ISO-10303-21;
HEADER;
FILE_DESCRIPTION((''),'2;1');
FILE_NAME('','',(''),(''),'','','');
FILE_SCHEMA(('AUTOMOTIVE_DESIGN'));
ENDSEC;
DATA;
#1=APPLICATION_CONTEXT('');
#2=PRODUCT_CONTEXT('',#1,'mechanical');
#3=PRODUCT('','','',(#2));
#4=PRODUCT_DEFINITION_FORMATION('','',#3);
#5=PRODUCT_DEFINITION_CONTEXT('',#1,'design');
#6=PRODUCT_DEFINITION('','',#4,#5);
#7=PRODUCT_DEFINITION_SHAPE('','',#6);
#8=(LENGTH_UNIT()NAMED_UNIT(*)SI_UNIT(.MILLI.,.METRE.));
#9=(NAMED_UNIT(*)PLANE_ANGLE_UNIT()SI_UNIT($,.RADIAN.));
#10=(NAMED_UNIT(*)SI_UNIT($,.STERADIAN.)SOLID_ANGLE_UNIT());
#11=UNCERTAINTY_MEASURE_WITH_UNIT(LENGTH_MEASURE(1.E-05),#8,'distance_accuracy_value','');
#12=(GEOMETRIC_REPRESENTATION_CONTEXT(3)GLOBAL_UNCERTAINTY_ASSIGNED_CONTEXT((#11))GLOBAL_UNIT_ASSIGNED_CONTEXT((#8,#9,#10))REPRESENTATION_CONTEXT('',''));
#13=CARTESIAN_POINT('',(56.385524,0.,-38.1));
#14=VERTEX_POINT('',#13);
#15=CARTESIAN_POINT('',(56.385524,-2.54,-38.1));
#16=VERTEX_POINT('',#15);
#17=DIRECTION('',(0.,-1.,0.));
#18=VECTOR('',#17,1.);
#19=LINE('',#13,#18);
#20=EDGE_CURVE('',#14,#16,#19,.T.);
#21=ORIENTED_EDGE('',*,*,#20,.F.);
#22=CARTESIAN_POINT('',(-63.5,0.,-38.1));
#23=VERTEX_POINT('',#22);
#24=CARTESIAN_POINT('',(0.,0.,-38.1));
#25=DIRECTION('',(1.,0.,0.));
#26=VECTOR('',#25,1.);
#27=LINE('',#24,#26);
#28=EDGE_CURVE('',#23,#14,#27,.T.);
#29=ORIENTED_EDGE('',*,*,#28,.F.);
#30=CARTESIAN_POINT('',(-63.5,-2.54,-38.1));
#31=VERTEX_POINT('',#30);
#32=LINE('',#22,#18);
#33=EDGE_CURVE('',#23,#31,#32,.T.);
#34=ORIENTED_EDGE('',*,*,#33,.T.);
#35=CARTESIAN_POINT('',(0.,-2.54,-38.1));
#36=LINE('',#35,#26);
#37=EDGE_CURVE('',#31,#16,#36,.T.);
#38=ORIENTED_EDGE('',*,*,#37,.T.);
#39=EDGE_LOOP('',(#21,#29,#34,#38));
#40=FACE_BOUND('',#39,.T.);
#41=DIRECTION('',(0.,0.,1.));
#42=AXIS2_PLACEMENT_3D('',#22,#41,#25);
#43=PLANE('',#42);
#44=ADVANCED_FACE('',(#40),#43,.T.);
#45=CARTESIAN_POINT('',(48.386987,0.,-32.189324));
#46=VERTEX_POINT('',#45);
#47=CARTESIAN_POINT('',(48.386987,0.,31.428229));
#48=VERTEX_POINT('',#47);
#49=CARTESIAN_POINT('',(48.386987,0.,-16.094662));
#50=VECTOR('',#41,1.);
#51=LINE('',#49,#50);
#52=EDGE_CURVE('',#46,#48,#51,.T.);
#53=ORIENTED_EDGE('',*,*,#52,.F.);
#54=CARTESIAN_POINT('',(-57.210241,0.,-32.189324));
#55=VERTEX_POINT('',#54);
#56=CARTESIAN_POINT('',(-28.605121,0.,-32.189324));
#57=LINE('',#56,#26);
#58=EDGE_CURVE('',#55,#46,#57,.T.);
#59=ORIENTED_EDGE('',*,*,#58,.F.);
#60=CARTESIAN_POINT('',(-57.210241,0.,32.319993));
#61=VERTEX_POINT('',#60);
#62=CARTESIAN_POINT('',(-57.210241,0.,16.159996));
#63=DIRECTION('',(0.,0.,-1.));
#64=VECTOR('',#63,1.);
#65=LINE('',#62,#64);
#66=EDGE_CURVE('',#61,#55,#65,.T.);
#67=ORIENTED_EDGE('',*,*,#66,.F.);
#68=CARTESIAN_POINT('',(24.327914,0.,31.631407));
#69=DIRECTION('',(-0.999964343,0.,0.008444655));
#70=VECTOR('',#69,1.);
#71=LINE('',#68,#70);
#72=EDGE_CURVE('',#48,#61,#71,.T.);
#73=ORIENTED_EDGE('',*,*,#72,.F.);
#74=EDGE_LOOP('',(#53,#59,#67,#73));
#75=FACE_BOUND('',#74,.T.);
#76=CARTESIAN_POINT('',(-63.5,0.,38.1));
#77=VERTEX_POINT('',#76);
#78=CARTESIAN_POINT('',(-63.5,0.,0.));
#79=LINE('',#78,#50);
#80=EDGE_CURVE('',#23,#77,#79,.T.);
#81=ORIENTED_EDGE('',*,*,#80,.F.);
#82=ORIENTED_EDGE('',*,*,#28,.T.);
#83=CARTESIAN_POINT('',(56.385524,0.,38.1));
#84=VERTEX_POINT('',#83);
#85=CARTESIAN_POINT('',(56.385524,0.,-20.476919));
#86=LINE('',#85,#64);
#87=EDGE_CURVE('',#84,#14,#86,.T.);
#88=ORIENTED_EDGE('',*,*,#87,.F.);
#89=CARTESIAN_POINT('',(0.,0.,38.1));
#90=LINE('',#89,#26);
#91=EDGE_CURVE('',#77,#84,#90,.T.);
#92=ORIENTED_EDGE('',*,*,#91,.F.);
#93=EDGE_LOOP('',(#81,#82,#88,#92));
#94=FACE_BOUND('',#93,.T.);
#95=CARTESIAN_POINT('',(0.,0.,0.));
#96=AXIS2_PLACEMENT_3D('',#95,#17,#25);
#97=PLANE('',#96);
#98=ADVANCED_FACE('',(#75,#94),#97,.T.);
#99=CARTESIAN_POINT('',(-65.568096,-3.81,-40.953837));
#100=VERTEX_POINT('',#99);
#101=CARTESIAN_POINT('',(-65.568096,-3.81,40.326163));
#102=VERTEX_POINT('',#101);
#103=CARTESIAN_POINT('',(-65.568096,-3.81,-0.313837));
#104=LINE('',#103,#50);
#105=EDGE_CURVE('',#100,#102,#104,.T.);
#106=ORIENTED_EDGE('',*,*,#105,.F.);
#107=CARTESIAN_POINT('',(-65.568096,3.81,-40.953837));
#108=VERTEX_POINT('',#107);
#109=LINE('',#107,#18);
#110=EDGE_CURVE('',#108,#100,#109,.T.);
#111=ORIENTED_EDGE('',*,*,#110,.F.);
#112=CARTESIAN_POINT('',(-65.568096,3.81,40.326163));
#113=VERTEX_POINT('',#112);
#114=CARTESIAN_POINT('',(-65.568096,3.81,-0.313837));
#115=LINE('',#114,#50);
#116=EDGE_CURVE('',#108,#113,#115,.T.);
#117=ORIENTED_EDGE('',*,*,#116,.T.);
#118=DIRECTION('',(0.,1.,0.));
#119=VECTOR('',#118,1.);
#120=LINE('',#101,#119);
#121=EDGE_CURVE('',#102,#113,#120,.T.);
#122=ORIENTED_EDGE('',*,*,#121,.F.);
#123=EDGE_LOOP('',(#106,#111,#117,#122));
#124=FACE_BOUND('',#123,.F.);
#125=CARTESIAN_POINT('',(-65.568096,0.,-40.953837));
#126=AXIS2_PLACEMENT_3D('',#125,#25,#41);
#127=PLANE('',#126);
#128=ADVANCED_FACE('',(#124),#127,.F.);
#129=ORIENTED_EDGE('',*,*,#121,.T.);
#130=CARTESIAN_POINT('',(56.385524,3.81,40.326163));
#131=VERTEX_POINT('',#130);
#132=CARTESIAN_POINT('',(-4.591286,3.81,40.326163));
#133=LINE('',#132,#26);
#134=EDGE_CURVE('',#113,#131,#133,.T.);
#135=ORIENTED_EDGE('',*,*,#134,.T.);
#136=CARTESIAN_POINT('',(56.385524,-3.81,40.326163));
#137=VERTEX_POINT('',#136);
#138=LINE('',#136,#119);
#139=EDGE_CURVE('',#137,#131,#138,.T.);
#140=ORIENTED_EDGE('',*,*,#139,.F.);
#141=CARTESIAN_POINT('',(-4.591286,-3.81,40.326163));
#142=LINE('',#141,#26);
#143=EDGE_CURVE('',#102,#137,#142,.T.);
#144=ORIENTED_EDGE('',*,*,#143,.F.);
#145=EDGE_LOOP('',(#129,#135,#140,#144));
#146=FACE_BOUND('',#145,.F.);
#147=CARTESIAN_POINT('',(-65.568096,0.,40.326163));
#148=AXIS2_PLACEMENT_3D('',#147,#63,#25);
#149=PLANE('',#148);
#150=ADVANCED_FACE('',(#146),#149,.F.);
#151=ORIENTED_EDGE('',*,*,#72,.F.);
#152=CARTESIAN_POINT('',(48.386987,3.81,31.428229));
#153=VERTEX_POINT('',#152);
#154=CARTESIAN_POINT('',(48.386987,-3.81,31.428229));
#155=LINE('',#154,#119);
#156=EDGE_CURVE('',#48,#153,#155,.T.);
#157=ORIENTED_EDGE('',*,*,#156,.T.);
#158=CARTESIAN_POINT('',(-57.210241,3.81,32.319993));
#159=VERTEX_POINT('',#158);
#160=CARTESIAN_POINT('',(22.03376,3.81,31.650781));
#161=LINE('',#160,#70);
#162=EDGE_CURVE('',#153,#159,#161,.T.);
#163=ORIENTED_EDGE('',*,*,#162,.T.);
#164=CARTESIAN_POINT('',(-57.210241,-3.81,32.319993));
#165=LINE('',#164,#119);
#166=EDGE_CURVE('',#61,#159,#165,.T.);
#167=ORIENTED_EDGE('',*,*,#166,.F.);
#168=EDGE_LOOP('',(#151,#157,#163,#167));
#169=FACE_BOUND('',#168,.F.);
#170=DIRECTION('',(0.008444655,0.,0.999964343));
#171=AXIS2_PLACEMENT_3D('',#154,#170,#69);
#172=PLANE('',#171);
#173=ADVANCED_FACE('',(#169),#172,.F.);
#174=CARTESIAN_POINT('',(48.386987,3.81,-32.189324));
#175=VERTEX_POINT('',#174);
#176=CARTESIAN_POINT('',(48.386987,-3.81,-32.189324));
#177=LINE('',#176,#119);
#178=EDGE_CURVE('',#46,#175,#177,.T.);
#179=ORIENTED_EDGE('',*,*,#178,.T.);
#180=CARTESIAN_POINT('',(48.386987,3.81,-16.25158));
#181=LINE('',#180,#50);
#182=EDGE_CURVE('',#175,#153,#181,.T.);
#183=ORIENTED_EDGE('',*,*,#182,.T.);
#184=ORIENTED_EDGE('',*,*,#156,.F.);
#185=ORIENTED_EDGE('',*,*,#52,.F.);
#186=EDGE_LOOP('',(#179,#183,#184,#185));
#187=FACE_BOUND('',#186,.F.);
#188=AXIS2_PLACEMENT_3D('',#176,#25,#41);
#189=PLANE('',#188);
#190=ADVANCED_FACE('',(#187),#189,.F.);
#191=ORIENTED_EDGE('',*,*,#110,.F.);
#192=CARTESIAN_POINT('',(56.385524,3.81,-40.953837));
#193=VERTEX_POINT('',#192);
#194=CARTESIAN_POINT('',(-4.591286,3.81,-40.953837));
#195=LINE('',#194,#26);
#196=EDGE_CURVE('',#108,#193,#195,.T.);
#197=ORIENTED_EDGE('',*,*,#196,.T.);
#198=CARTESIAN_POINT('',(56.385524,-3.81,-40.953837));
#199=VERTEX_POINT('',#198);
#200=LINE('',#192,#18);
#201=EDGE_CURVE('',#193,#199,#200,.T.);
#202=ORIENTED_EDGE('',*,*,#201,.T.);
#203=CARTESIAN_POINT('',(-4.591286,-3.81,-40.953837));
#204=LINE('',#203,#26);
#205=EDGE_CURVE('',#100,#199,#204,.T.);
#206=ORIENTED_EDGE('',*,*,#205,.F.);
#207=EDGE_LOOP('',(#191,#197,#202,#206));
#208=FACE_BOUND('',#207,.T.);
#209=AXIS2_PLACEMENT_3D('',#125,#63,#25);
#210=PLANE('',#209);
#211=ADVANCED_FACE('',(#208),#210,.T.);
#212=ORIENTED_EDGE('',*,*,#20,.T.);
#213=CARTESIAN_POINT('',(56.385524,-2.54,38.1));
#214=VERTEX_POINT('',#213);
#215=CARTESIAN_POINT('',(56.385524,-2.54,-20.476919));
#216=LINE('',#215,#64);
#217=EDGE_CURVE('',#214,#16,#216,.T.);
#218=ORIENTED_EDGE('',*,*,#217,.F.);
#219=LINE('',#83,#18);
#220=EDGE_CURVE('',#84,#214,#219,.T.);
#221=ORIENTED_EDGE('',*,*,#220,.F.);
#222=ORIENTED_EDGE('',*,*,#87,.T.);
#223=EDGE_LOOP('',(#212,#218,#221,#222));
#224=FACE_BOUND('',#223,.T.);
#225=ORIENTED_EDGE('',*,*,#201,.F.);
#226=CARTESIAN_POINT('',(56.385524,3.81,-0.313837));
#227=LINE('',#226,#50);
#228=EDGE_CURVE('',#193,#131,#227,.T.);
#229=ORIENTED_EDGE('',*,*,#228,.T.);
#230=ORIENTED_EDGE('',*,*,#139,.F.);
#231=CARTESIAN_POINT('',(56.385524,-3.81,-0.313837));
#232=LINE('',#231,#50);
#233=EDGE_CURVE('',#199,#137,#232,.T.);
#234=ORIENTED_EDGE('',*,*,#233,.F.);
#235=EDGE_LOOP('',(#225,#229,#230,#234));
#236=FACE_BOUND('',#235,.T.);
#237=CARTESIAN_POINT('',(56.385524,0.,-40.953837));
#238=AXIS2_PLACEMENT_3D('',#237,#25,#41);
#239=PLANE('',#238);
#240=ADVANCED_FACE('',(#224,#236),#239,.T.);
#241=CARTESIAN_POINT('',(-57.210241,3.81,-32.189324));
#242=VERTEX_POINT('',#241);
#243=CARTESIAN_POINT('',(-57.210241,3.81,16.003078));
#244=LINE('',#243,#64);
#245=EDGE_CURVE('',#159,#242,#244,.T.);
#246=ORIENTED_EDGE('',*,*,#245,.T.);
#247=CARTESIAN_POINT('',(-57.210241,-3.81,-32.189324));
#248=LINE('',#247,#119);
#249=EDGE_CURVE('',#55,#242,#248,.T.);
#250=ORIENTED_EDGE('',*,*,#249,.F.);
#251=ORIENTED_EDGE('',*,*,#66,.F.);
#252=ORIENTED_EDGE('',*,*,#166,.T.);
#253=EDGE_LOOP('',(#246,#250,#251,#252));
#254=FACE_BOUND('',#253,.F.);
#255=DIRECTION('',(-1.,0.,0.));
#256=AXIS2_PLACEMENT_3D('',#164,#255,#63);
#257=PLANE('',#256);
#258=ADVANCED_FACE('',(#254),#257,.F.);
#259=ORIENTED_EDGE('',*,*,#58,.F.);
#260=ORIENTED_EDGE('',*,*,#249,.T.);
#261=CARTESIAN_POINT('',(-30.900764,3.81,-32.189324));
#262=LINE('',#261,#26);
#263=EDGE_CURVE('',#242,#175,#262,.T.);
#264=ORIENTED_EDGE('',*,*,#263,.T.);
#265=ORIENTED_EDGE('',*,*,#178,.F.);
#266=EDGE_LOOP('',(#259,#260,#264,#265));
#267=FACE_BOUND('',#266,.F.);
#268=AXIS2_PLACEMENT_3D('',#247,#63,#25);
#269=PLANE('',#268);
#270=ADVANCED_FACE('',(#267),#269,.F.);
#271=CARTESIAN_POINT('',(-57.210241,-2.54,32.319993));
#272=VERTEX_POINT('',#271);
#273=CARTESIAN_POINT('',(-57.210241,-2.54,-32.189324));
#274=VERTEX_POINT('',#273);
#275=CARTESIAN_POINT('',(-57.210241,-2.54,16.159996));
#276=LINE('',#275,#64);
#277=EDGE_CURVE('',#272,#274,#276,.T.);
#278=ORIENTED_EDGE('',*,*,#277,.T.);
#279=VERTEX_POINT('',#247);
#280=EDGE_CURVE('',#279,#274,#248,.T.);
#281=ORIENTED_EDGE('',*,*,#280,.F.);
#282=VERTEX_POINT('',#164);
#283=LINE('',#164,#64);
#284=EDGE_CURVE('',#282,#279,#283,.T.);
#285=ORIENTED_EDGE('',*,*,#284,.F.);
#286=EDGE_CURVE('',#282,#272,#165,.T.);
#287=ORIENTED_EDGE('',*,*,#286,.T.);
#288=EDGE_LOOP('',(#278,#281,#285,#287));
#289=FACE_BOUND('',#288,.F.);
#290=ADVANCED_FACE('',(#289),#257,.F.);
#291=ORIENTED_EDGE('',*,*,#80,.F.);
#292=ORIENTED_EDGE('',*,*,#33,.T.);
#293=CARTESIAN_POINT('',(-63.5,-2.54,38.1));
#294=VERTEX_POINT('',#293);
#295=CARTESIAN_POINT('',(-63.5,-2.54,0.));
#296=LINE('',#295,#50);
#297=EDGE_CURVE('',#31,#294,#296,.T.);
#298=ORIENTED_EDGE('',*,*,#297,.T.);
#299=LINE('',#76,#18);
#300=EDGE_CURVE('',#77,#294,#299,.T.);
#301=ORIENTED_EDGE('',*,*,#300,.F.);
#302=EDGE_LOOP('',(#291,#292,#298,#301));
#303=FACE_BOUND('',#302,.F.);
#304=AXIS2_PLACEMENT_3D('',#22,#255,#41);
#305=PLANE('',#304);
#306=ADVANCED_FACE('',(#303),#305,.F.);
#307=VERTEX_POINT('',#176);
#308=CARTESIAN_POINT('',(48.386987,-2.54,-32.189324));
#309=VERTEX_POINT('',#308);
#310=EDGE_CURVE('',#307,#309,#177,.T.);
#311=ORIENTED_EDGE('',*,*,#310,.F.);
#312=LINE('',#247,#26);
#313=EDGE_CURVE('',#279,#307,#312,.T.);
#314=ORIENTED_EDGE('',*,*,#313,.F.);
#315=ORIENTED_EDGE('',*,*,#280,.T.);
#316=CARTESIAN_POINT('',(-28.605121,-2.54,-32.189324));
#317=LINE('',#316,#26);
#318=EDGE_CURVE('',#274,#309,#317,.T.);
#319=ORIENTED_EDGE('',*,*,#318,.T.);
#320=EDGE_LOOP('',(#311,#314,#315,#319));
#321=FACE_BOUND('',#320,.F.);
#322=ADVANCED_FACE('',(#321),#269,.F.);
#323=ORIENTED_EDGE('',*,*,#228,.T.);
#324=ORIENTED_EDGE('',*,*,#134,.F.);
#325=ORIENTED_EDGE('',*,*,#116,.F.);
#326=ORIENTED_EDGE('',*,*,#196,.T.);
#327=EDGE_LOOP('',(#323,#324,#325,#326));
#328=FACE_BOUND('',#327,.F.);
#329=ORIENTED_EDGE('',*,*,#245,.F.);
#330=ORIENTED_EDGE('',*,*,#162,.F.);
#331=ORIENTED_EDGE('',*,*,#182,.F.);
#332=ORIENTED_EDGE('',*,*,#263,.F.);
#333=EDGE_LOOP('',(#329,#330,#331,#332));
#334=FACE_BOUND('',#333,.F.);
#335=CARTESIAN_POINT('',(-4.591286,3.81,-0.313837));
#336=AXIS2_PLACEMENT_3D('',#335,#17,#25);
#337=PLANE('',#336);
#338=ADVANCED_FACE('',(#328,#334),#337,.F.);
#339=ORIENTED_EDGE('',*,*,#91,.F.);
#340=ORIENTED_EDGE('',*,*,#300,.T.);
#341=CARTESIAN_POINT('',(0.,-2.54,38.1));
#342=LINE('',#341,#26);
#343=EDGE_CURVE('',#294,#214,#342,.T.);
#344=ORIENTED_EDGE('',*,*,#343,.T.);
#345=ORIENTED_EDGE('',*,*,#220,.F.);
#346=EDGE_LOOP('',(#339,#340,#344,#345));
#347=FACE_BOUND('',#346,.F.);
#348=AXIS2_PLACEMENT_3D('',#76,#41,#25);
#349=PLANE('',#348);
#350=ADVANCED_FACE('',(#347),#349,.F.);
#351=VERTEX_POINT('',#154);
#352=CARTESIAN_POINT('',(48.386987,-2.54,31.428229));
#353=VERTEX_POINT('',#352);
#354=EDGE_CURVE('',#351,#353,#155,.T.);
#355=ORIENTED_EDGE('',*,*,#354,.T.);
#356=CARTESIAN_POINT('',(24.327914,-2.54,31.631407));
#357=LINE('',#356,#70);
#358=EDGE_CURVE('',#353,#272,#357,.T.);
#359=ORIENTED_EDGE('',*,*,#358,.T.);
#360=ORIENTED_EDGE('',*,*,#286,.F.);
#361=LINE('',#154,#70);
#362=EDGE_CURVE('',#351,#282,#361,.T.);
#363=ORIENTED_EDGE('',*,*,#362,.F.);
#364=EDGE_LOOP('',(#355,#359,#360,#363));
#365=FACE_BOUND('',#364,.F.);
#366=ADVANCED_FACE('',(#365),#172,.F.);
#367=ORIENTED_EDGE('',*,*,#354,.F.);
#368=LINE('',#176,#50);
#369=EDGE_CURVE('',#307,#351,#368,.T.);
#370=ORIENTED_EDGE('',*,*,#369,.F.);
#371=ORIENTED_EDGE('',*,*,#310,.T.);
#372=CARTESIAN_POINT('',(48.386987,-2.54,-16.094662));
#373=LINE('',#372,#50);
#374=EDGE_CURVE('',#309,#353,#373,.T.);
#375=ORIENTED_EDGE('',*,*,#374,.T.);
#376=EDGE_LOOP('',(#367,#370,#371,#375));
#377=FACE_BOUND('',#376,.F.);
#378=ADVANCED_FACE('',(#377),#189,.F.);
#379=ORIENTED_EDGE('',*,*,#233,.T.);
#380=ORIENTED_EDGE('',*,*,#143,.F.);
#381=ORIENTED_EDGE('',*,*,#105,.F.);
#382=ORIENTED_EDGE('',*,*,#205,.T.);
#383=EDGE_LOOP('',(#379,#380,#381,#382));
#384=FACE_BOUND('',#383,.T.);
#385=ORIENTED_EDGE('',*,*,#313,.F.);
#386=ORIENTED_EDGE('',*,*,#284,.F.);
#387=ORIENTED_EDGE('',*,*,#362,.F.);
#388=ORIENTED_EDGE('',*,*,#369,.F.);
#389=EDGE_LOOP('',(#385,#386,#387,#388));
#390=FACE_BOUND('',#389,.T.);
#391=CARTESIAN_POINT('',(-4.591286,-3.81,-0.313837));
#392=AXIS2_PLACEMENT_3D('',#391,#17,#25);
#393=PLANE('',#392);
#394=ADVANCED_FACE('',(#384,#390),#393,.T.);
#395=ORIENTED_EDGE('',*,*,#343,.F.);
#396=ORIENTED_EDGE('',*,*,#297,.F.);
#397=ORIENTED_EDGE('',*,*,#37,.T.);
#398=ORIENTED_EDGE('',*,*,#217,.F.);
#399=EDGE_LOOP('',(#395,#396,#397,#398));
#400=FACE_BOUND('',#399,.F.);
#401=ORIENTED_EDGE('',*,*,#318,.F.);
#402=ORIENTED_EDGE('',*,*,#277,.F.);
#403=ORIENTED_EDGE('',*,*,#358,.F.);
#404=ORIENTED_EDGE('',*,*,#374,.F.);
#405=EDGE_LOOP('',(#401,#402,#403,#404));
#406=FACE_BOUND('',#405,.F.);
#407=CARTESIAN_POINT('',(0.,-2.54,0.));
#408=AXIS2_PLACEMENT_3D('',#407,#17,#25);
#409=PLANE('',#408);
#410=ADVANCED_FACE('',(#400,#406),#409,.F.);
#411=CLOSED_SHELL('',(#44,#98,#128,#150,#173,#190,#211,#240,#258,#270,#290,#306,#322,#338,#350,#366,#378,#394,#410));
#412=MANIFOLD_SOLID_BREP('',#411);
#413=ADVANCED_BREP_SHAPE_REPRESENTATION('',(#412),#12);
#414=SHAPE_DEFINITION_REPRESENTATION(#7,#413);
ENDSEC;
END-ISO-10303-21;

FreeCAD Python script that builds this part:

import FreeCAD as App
import Part
import Sketcher

V = App.Vector
Q = App.Units.Quantity


def add_polygon(sketch, points):
    """Adds a closed chain of lines whose ends are joined by coincident constraints."""
    first, n = sketch.GeometryCount, len(points)
    for a, b in zip(points, points[1:] + points[:1]):
        sketch.addGeometry(Part.LineSegment(App.Vector(*a, 0), App.Vector(*b, 0)), False)
    for i in range(n):
        sketch.addConstraint(Sketcher.Constraint("Coincident", first + i, 2, first + (i + 1) % n, 1))

doc = App.newDocument("Part")
body = doc.addObject("PartDesign::Body", "Body")

# Sketch on XZ plane
sketch1 = body.newObject("Sketcher::SketchObject", "Sketch")
sketch1.AttachmentSupport = (doc.getObject("XZ_Plane"), [""])
sketch1.MapMode = "FlatFace"
add_polygon(sketch1, [(-64, 38), (-64, -38), (64, -38), (64, 38)])  # lines 0-3
sketch1.addConstraint(Sketcher.Constraint("Vertical", 0))
sketch1.addConstraint(Sketcher.Constraint("Horizontal", 1))
sketch1.addConstraint(Sketcher.Constraint("Vertical", 2))
sketch1.addConstraint(Sketcher.Constraint("Horizontal", 3))
sketch1.addConstraint(Sketcher.Constraint("Symmetric", 0, 2, 2, 2, -1, 1))
sketch1.addConstraint(Sketcher.Constraint("DistanceX", 1, 1, 1, 2, Q("5 in")))
sketch1.addConstraint(Sketcher.Constraint("DistanceY", 0, 2, 0, 1, Q("3 in")))
pad1 = body.newObject("PartDesign::Pad", "Pad")
pad1.Profile = sketch1
pad1.Length = Q("0.1 in")
body2 = doc.addObject("PartDesign::Body", "Body001")

# Sketch on XZ plane
sketch2 = body2.newObject("Sketcher::SketchObject", "Sketch001")
sketch2.AttachmentSupport = (doc.getObject("XZ_Plane001"), [""])
sketch2.MapMode = "FlatFace"
add_polygon(sketch2, [(-66, 40), (-66, -41), (56, -41), (56, 40)])  # lines 0-3
sketch2.addConstraint(Sketcher.Constraint("Vertical", 0))
sketch2.addConstraint(Sketcher.Constraint("Horizontal", 1))
sketch2.addConstraint(Sketcher.Constraint("Vertical", 2))
sketch2.addConstraint(Sketcher.Constraint("Horizontal", 3))
sketch2.addConstraint(Sketcher.Constraint("DistanceY", 0, 2, 0, 1, Q("3.2 in")))
sketch2.addConstraint(Sketcher.Constraint("DistanceX", 1, 1, 1, 2, 121.95362))
sketch2.addConstraint(Sketcher.Constraint("DistanceX", 0, 2, -1, 1, 65.568096))
sketch2.addConstraint(Sketcher.Constraint("DistanceY", 0, 2, -1, 1, 40.953837))
pad2 = body2.newObject("PartDesign::Pad", "Pad001")
pad2.Profile = sketch2
pad2.Length = Q("0.3 in")
pad2.Midplane = True
body3 = doc.addObject("PartDesign::Body", "Body002")

# Sketch on XZ plane
sketch3 = body3.newObject("Sketcher::SketchObject", "Sketch002")
sketch3.AttachmentSupport = (doc.getObject("XZ_Plane002"), [""])
sketch3.MapMode = "FlatFace"
sketch3.AttachmentOffset = App.Placement(V(0, 0, 0.15 * 25.4), App.Rotation())
add_polygon(sketch3, [(48, 31), (-57, 32), (-57, -32), (48, -32)])  # lines 0-3
sketch3.addConstraint(Sketcher.Constraint("Vertical", 1))
sketch3.addConstraint(Sketcher.Constraint("Horizontal", 2))
sketch3.addConstraint(Sketcher.Constraint("Vertical", 3))
sketch3.addConstraint(Sketcher.Constraint("DistanceX", 2, 1, 2, 2, 105.597228))
sketch3.addConstraint(Sketcher.Constraint("DistanceY", 1, 2, 1, 1, 64.509317))
sketch3.addConstraint(Sketcher.Constraint("DistanceY", 3, 1, 3, 2, 63.617553))
sketch3.addConstraint(Sketcher.Constraint("DistanceX", 0, 2, -1, 1, 57.210241))
sketch3.addConstraint(Sketcher.Constraint("DistanceY", -1, 1, 3, 2, 31.428229))
pad3 = body3.newObject("PartDesign::Pad", "Pad002")
pad3.Profile = sketch3
pad3.Length = Q("1 in")
pad3.Reversed = True
doc.recompute()

body4 = doc.addObject("PartDesign::Body", "Body003")
body4.BaseFeature = body3
boolean = body.newObject("PartDesign::Boolean", "Boolean")
boolean.Type = "Cut"
boolean.addObjects([body4])
doc.recompute()

boolean2 = body2.newObject("PartDesign::Boolean", "Boolean001")
boolean2.Type = "Cut"
boolean2.addObjects([body3])
doc.recompute()

boolean3 = body2.newObject("PartDesign::Boolean", "Boolean002")
boolean3.Type = "Cut"
boolean3.addObjects([body])

doc.recompute()
